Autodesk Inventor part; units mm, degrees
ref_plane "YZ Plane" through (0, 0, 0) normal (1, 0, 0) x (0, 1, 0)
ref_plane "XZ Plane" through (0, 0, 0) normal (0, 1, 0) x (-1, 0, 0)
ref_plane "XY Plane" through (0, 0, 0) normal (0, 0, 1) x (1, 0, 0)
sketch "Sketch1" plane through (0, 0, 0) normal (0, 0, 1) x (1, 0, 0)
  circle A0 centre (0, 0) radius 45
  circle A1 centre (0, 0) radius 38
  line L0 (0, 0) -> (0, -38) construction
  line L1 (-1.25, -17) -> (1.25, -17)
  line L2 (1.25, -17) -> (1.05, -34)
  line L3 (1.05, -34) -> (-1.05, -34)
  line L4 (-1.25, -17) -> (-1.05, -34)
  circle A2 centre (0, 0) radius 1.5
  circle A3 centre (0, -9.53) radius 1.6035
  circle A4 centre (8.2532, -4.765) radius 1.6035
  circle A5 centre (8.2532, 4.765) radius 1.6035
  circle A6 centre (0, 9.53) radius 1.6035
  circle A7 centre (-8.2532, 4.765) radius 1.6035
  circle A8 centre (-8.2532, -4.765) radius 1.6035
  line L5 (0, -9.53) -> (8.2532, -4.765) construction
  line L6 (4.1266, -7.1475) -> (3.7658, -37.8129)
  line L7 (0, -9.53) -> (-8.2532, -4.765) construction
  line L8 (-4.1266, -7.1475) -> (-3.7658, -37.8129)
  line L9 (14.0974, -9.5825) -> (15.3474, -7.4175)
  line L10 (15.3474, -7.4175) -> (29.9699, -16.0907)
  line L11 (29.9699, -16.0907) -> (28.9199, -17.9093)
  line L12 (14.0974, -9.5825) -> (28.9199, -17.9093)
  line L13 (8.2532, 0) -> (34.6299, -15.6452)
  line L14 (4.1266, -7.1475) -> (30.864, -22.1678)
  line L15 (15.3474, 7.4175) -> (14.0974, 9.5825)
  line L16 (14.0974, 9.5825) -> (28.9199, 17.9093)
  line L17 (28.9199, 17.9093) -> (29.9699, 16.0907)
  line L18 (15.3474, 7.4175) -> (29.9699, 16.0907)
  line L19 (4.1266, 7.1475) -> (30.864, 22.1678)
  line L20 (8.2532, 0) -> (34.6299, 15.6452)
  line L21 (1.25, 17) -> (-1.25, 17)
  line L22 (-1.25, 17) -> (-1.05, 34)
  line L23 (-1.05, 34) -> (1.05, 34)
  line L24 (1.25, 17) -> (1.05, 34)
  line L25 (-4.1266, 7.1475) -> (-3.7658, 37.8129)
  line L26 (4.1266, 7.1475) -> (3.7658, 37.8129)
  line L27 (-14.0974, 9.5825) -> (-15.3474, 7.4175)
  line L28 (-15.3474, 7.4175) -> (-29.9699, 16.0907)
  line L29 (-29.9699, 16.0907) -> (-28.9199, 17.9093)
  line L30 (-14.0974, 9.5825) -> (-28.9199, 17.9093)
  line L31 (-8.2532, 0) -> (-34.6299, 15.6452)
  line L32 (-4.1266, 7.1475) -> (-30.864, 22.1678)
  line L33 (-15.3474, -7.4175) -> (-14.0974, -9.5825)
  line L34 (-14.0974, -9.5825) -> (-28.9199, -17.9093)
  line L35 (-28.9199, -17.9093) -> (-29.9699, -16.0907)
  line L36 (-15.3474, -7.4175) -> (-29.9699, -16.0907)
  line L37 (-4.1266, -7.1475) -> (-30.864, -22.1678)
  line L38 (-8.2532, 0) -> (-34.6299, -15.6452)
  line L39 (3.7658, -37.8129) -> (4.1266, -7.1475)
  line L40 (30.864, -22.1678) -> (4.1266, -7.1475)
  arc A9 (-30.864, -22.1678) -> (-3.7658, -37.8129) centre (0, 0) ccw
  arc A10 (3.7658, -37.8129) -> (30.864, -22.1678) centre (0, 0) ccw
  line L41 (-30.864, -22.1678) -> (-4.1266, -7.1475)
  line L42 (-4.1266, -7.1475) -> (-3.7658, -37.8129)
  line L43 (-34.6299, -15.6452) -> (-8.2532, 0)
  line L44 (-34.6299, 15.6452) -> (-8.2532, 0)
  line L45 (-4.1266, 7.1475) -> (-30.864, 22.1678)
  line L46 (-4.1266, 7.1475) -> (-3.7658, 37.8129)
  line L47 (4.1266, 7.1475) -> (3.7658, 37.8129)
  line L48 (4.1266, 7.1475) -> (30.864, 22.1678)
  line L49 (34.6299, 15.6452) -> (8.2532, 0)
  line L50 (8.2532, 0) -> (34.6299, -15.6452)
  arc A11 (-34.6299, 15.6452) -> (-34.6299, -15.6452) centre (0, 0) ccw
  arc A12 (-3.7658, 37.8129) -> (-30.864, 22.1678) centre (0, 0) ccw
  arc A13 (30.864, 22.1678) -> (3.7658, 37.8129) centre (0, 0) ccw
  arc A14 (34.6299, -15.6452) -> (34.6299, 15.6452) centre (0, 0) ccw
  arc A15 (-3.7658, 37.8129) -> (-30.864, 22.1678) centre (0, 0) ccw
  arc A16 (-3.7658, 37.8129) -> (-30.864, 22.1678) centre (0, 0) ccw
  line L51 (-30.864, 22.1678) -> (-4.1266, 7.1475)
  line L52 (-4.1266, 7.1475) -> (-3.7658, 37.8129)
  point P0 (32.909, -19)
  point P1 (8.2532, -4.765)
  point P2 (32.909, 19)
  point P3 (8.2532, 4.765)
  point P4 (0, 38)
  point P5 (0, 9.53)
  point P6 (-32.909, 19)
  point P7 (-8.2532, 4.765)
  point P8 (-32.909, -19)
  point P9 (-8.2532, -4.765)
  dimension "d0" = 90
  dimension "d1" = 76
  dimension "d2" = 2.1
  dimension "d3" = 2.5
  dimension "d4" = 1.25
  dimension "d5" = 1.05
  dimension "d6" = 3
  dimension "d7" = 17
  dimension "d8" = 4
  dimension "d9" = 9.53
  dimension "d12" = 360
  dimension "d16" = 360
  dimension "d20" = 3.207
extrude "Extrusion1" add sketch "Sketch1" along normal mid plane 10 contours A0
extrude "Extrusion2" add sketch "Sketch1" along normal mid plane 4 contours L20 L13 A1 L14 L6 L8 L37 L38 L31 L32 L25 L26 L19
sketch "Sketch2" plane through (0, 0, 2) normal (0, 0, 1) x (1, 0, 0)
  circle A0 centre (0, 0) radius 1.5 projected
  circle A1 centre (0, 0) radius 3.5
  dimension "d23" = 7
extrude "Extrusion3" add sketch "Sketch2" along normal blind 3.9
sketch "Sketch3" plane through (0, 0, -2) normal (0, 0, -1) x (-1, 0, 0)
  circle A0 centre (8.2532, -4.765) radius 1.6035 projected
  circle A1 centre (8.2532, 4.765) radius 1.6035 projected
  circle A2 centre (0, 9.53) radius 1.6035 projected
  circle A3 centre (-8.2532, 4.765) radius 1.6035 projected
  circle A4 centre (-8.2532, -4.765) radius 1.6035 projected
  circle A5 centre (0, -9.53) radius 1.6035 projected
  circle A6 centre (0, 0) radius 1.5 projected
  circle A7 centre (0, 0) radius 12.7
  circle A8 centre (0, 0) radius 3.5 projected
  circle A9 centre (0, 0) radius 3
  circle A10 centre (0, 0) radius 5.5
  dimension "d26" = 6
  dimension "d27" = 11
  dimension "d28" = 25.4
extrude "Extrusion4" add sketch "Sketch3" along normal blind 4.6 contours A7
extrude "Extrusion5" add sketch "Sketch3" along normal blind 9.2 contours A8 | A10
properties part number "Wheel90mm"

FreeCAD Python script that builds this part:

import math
import FreeCAD as App
import Part
import Sketcher

V = App.Vector
Q = App.Units.Quantity

doc = App.newDocument("Part")
body = doc.addObject("PartDesign::Body", "Body")

# Sketch on XY plane
sketch1 = body.newObject("Sketcher::SketchObject", "Sketch")
sketch1.AttachmentSupport = (doc.getObject("XY_Plane"), [""])
sketch1.MapMode = "FlatFace"
sketch1.addGeometry(Part.Circle(V(0, 0, 0), V(0, 0, 1), 45), False)
sketch1.addGeometry(Part.Circle(V(0, 0, 0), V(0, 0, 1), 38), False)
sketch1.addConstraint(Sketcher.Constraint("Coincident", 0, 3, -1, 1))
sketch1.addConstraint(Sketcher.Constraint("Coincident", 1, 3, -1, 1))
sketch1.addConstraint(Sketcher.Constraint("Diameter", 0, 90.0))
sketch1.addConstraint(Sketcher.Constraint("Diameter", 1, 76.0))
pad1 = body.newObject("PartDesign::Pad", "Pad")
pad1.Profile = sketch1
pad1.Length = 10
pad1.Midplane = True

# Sketch on XY plane
sketch2 = body.newObject("Sketcher::SketchObject", "Sketch001")
sketch2.AttachmentSupport = (doc.getObject("XY_Plane"), [""])
sketch2.MapMode = "FlatFace"
sketch2.addGeometry(Part.LineSegment(V(8.3, 0, 0), V(34.6, 15.6, 0)), False)
sketch2.addGeometry(Part.ArcOfCircle(Part.Circle(V(0, 0, 0), V(0, 0, 1), 38), math.radians(24.31), math.radians(35.69)), False)
sketch2.addGeometry(Part.LineSegment(V(30.9, 22.2, 0), V(4.1, 7.1, 0)), False)
sketch2.addGeometry(Part.LineSegment(V(4.1, 7.1, 0), V(3.8, 37.8, 0)), False)
sketch2.addGeometry(Part.ArcOfCircle(Part.Circle(V(0, 0, 0), V(0, 0, 1), 38), math.radians(84.31), math.radians(95.69)), False)
sketch2.addGeometry(Part.LineSegment(V(-3.8, 37.8, 0), V(-4.1, 7.1, 0)), False)
sketch2.addGeometry(Part.LineSegment(V(-4.1, 7.1, 0), V(-30.9, 22.2, 0)), False)
sketch2.addGeometry(Part.ArcOfCircle(Part.Circle(V(0, 0, 0), V(0, 0, 1), 38), math.radians(144.31), math.radians(155.69)), False)
sketch2.addGeometry(Part.LineSegment(V(-34.6, 15.6, 0), V(-8.3, 0, 0)), False)
sketch2.addGeometry(Part.LineSegment(V(-8.3, 0, 0), V(-34.6, -15.6, 0)), False)
sketch2.addGeometry(Part.ArcOfCircle(Part.Circle(V(0, 0, 0), V(0, 0, 1), 38), math.radians(-155.69), math.radians(-144.31)), False)
sketch2.addGeometry(Part.LineSegment(V(-30.9, -22.2, 0), V(-4.1, -7.1, 0)), False)
sketch2.addGeometry(Part.LineSegment(V(-4.1, -7.1, 0), V(-3.8, -37.8, 0)), False)
sketch2.addGeometry(Part.ArcOfCircle(Part.Circle(V(0, 0, 0), V(0, 0, 1), 38), math.radians(-95.69), math.radians(-84.31)), False)
sketch2.addGeometry(Part.LineSegment(V(3.8, -37.8, 0), V(4.1, -7.1, 0)), False)
sketch2.addGeometry(Part.LineSegment(V(4.1, -7.1, 0), V(30.9, -22.2, 0)), False)
sketch2.addGeometry(Part.ArcOfCircle(Part.Circle(V(0, 0, 0), V(0, 0, 1), 38), math.radians(-35.69), math.radians(-24.31)), False)
sketch2.addGeometry(Part.LineSegment(V(34.6, -15.6, 0), V(8.3, 0, 0)), False)
sketch2.addGeometry(Part.LineSegment(V(-30, -16.1, 0), V(-15.3, -7.4, 0)), False)
sketch2.addGeometry(Part.LineSegment(V(-15.3, -7.4, 0), V(-14.1, -9.6, 0)), False)
sketch2.addGeometry(Part.LineSegment(V(-14.1, -9.6, 0), V(-28.9, -17.9, 0)), False)
sketch2.addGeometry(Part.LineSegment(V(-28.9, -17.9, 0), V(-30, -16.1, 0)), False)
sketch2.addGeometry(Part.Circle(V(-8.3, -4.8, 0), V(0, 0, 1), 1.6), False)
sketch2.addGeometry(Part.LineSegment(V(-1.1, -34, 0), V(-1.2, -17, 0)), False)
sketch2.addGeometry(Part.LineSegment(V(-1.2, -17, 0), V(1.2, -17, 0)), False)
sketch2.addGeometry(Part.LineSegment(V(1.2, -17, 0), V(1.1, -34, 0)), False)
sketch2.addGeometry(Part.LineSegment(V(1.1, -34, 0), V(-1.1, -34, 0)), False)
sketch2.addGeometry(Part.LineSegment(V(28.9, -17.9, 0), V(14.1, -9.6, 0)), False)
sketch2.addGeometry(Part.LineSegment(V(14.1, -9.6, 0), V(15.3, -7.4, 0)), False)
sketch2.addGeometry(Part.LineSegment(V(15.3, -7.4, 0), V(30, -16.1, 0)), False)
sketch2.addGeometry(Part.LineSegment(V(30, -16.1, 0), V(28.9, -17.9, 0)), False)
sketch2.addGeometry(Part.Circle(V(0, -9.5, 0), V(0, 0, 1), 1.6), False)
sketch2.addGeometry(Part.Circle(V(8.3, -4.8, 0), V(0, 0, 1), 1.6), False)
sketch2.addGeometry(Part.Circle(V(-8.3, 4.8, 0), V(0, 0, 1), 1.6), False)
sketch2.addGeometry(Part.LineSegment(V(-28.9, 17.9, 0), V(-14.1, 9.6, 0)), False)
sketch2.addGeometry(Part.LineSegment(V(-14.1, 9.6, 0), V(-15.3, 7.4, 0)), False)
sketch2.addGeometry(Part.LineSegment(V(-15.3, 7.4, 0), V(-30, 16.1, 0)), False)
sketch2.addGeometry(Part.LineSegment(V(-30, 16.1, 0), V(-28.9, 17.9, 0)), False)
sketch2.addGeometry(Part.Circle(V(0, 0, 0), V(0, 0, 1), 1.5), False)
sketch2.addGeometry(Part.Circle(V(8.3, 4.8, 0), V(0, 0, 1), 1.6), False)
sketch2.addGeometry(Part.Circle(V(0, 9.5, 0), V(0, 0, 1), 1.6), False)
sketch2.addGeometry(Part.LineSegment(V(30, 16.1, 0), V(15.3, 7.4, 0)), False)
sketch2.addGeometry(Part.LineSegment(V(15.3, 7.4, 0), V(14.1, 9.6, 0)), False)
sketch2.addGeometry(Part.LineSegment(V(14.1, 9.6, 0), V(28.9, 17.9, 0)), False)
sketch2.addGeometry(Part.LineSegment(V(28.9, 17.9, 0), V(30, 16.1, 0)), False)
sketch2.addGeometry(Part.LineSegment(V(1.1, 34, 0), V(1.2, 17, 0)), False)
sketch2.addGeometry(Part.LineSegment(V(1.2, 17, 0), V(-1.2, 17, 0)), False)
sketch2.addGeometry(Part.LineSegment(V(-1.2, 17, 0), V(-1.1, 34, 0)), False)
sketch2.addGeometry(Part.LineSegment(V(-1.1, 34, 0), V(1.1, 34, 0)), False)
sketch2.addConstraint(Sketcher.Constraint("Coincident", 0, 2, 1, 1))
sketch2.addConstraint(Sketcher.Constraint("Coincident", 1, 2, 2, 1))
sketch2.addConstraint(Sketcher.Constraint("Coincident", 2, 2, 3, 1))
sketch2.addConstraint(Sketcher.Constraint("Coincident", 3, 2, 4, 1))
sketch2.addConstraint(Sketcher.Constraint("Coincident", 4, 2, 5, 1))
sketch2.addConstraint(Sketcher.Constraint("Coincident", 5, 2, 6, 1))
sketch2.addConstraint(Sketcher.Constraint("Coincident", 6, 2, 7, 1))
sketch2.addConstraint(Sketcher.Constraint("Coincident", 7, 2, 8, 1))
sketch2.addConstraint(Sketcher.Constraint("Coincident", 8, 2, 9, 1))
sketch2.addConstraint(Sketcher.Constraint("Coincident", 9, 2, 10, 1))
sketch2.addConstraint(Sketcher.Constraint("Coincident", 10, 2, 11, 1))
sketch2.addConstraint(Sketcher.Constraint("Coincident", 11, 2, 12, 1))
sketch2.addConstraint(Sketcher.Constraint("Coincident", 12, 2, 13, 1))
sketch2.addConstraint(Sketcher.Constraint("Coincident", 13, 2, 14, 1))
sketch2.addConstraint(Sketcher.Constraint("Coincident", 14, 2, 15, 1))
sketch2.addConstraint(Sketcher.Constraint("Coincident", 15, 2, 16, 1))
sketch2.addConstraint(Sketcher.Constraint("Coincident", 16, 2, 17, 1))
sketch2.addConstraint(Sketcher.Constraint("Coincident", 17, 2, 0, 1))
sketch2.addConstraint(Sketcher.Constraint("Coincident", 18, 2, 19, 1))
sketch2.addConstraint(Sketcher.Constraint("Coincident", 19, 2, 20, 1))
sketch2.addConstraint(Sketcher.Constraint("Coincident", 20, 2, 21, 1))
sketch2.addConstraint(Sketcher.Constraint("Coincident", 21, 2, 18, 1))
sketch2.addConstraint(Sketcher.Constraint("Coincident", 23, 2, 24, 1))
sketch2.addConstraint(Sketcher.Constraint("Coincident", 24, 2, 25, 1))
sketch2.addConstraint(Sketcher.Constraint("Coincident", 25, 2, 26, 1))
sketch2.addConstraint(Sketcher.Constraint("Coincident", 26, 2, 23, 1))
sketch2.addConstraint(Sketcher.Constraint("Coincident", 27, 2, 28, 1))
sketch2.addConstraint(Sketcher.Constraint("Coincident", 28, 2, 29, 1))
sketch2.addConstraint(Sketcher.Constraint("Coincident", 29, 2, 30, 1))
sketch2.addConstraint(Sketcher.Constraint("Coincident", 30, 2, 27, 1))
sketch2.addConstraint(Sketcher.Constraint("Coincident", 34, 2, 35, 1))
sketch2.addConstraint(Sketcher.Constraint("Coincident", 35, 2, 36, 1))
sketch2.addConstraint(Sketcher.Constraint("Coincident", 36, 2, 37, 1))
sketch2.addConstraint(Sketcher.Constraint("Coincident", 37, 2, 34, 1))
sketch2.addConstraint(Sketcher.Constraint("Coincident", 41, 2, 42, 1))
sketch2.addConstraint(Sketcher.Constraint("Coincident", 42, 2, 43, 1))
sketch2.addConstraint(Sketcher.Constraint("Coincident", 43, 2, 44, 1))
sketch2.addConstraint(Sketcher.Constraint("Coincident", 44, 2, 41, 1))
sketch2.addConstraint(Sketcher.Constraint("Coincident", 45, 2, 46, 1))
sketch2.addConstraint(Sketcher.Constraint("Coincident", 46, 2, 47, 1))
sketch2.addConstraint(Sketcher.Constraint("Coincident", 47, 2, 48, 1))
sketch2.addConstraint(Sketcher.Constraint("Coincident", 48, 2, 45, 1))
sketch2.addConstraint(Sketcher.Constraint("Horizontal", 24))
sketch2.addConstraint(Sketcher.Constraint("Horizontal", 26))
sketch2.addConstraint(Sketcher.Constraint("Horizontal", 46))
sketch2.addConstraint(Sketcher.Constraint("Horizontal", 48))
sketch2.addConstraint(Sketcher.Constraint("Coincident", 1, 3, -1, 1))
sketch2.addConstraint(Sketcher.Constraint("Coincident", 4, 3, -1, 1))
sketch2.addConstraint(Sketcher.Constraint("Coincident", 7, 3, -1, 1))
sketch2.addConstraint(Sketcher.Constraint("Coincident", 10, 3, -1, 1))
sketch2.addConstraint(Sketcher.Constraint("Coincident", 13, 3, -1, 1))
sketch2.addConstraint(Sketcher.Constraint("Coincident", 16, 3, -1, 1))
sketch2.addConstraint(Sketcher.Constraint("Coincident", 38, 3, -1, 1))
sketch2.addConstraint(Sketcher.Constraint("Equal", 1, 4))
sketch2.addConstraint(Sketcher.Constraint("Equal", 4, 7))
sketch2.addConstraint(Sketcher.Constraint("Equal", 7, 10))
sketch2.addConstraint(Sketcher.Constraint("Equal", 10, 13))
sketch2.addConstraint(Sketcher.Constraint("Equal", 13, 16))
sketch2.addConstraint(Sketcher.Constraint("Equal", 22, 31))
sketch2.addConstraint(Sketcher.Constraint("Equal", 31, 32))
sketch2.addConstraint(Sketcher.Constraint("Equal", 32, 33))
sketch2.addConstraint(Sketcher.Constraint("Equal", 33, 39))
sketch2.addConstraint(Sketcher.Constraint("Equal", 39, 40))
sketch2.addConstraint(Sketcher.Constraint("Symmetric", 32, 3, 33, 3, -1, 1))
sketch2.addConstraint(Sketcher.Constraint("Symmetric", 22, 3, 39, 3, -1, 1))
sketch2.addConstraint(Sketcher.Constraint("Symmetric", 31, 3, 40, 3, -1, 1))
sketch2.addConstraint(Sketcher.Constraint("Symmetric", 2, 2, 11, 2, -1, 1))
sketch2.addConstraint(Sketcher.Constraint("Symmetric", 5, 2, 14, 2, -1, 1))
sketch2.addConstraint(Sketcher.Constraint("Symmetric", 8, 2, 17, 2, -1, 1))
sketch2.addConstraint(Sketcher.Constraint("Symmetric", 27, 2, 34, 2, -1, 1))
sketch2.addConstraint(Sketcher.Constraint("Symmetric", 28, 2, 35, 2, -1, 1))
sketch2.addConstraint(Sketcher.Constraint("Symmetric", 29, 2, 36, 2, -1, 1))
sketch2.addConstraint(Sketcher.Constraint("Symmetric", 30, 2, 37, 2, -1, 1))
sketch2.addConstraint(Sketcher.Constraint("Symmetric", 18, 2, 41, 2, -1, 1))
sketch2.addConstraint(Sketcher.Constraint("Symmetric", 19, 2, 42, 2, -1, 1))
sketch2.addConstraint(Sketcher.Constraint("Symmetric", 20, 2, 43, 2, -1, 1))
sketch2.addConstraint(Sketcher.Constraint("Symmetric", 21, 2, 44, 2, -1, 1))
sketch2.addConstraint(Sketcher.Constraint("Symmetric", 23, 2, 45, 2, -1, 1))
sketch2.addConstraint(Sketcher.Constraint("Symmetric", 25, 2, 47, 2, -1, 1))
sketch2.addConstraint(Sketcher.Constraint("Symmetric", 22, 3, 32, 3, -2))
sketch2.addConstraint(Sketcher.Constraint("Symmetric", 2, 2, 5, 2, -2))
sketch2.addConstraint(Sketcher.Constraint("Symmetric", 19, 2, 27, 2, -2))
sketch2.addConstraint(Sketcher.Constraint("Symmetric", 18, 2, 28, 2, -2))
sketch2.addConstraint(Sketcher.Constraint("Symmetric", 21, 2, 29, 2, -2))
sketch2.addConstraint(Sketcher.Constraint("Symmetric", 20, 2, 30, 2, -2))
sketch2.addConstraint(Sketcher.Constraint("PointOnObject", 31, 3, -2))
sketch2.addConstraint(Sketcher.Constraint("PointOnObject", 8, 2, -1))
sketch2.addConstraint(Sketcher.Constraint("Parallel", 0, 9))
sketch2.addConstraint(Sketcher.Constraint("Parallel", 2, 11))
sketch2.addConstraint(Sketcher.Constraint("Parallel", 3, 12))
sketch2.addConstraint(Sketcher.Constraint("Parallel", 5, 14))
sketch2.addConstraint(Sketcher.Constraint("Parallel", 6, 15))
sketch2.addConstraint(Sketcher.Constraint("Parallel", 8, 17))
sketch2.addConstraint(Sketcher.Constraint("Parallel", 9, 18))
sketch2.addConstraint(Sketcher.Constraint("Parallel", 11, 20))
sketch2.addConstraint(Sketcher.Constraint("Parallel", 19, 21))
sketch2.addConstraint(Sketcher.Constraint("Parallel", 12, 23))
sketch2.addConstraint(Sketcher.Constraint("Parallel", 14, 25))
sketch2.addConstraint(Sketcher.Constraint("Parallel", 15, 27))
sketch2.addConstraint(Sketcher.Constraint("Parallel", 17, 29))
sketch2.addConstraint(Sketcher.Constraint("Parallel", 23, 45))
sketch2.addConstraint(Sketcher.Constraint("Parallel", 25, 47))
sketch2.addConstraint(Sketcher.Constraint("Horizontal", 3, 2, 4, 2))
sketch2.addConstraint(Sketcher.Constraint("Vertical", 33, 3, 8, 2))
sketch2.addConstraint(Sketcher.Constraint("Vertical", 24, 2, 45, 2))
sketch2.addConstraint(Sketcher.Constraint("Equal", 0, 2))
sketch2.addConstraint(Sketcher.Constraint("Equal", 2, 3))
sketch2.addConstraint(Sketcher.Constraint("Equal", 18, 20))
sketch2.addConstraint(Sketcher.Constraint("Equal", 20, 23))
sketch2.addConstraint(Sketcher.Constraint("Diameter", 38, 3.0))
sketch2.addConstraint(Sketcher.Constraint("Radius", 1, 38.0))
sketch2.addConstraint(Sketcher.Constraint("Diameter", 22, 3.207))
sketch2.addConstraint(Sketcher.Constraint("DistanceX", 24, 1, 24, 2, 2.5))
sketch2.addConstraint(Sketcher.Constraint("DistanceX", 26, 2, 26, 1, 2.1))
sketch2.addConstraint(Sketcher.Constraint("DistanceY", 23, 2, -1, 1, 17.0))
sketch2.addConstraint(Sketcher.Constraint("DistanceY", 25, 2, 24, 2, 17.0))
sketch2.addConstraint(Sketcher.Constraint("Distance", 19, 2.5))
sketch2.addConstraint(Sketcher.Constraint("Distance", 21, 2.1))
sketch2.addConstraint(Sketcher.Constraint("DistanceY", 31, 3, -1, 1, 9.53))
sketch2.addConstraint(Sketcher.Constraint("Angle", 19, Q("-59.9993 deg")))
sketch2.addConstraint(Sketcher.Constraint("DistanceX", -1, 1, 0, 2, 34.63))
sketch2.addConstraint(Sketcher.Constraint("DistanceX", 20, 2, -1, 1, 28.92))
sketch2.addConstraint(Sketcher.Constraint("DistanceY", 18, 2, 11, 2, 0.27))
sketch2.addConstraint(Sketcher.Constraint("DistanceY", 22, 3, -1, 1, 4.765))
pad2 = body.newObject("PartDesign::Pad", "Pad001")
pad2.Profile = sketch2
pad2.Length = 4
pad2.Midplane = True

# Sketch on XY plane
sketch3 = body.newObject("Sketcher::SketchObject", "Sketch002")
sketch3.AttachmentSupport = (doc.getObject("XY_Plane"), [""])
sketch3.MapMode = "FlatFace"
sketch3.AttachmentOffset = App.Placement(V(0, 0, 2), App.Rotation())
sketch3.addGeometry(Part.Circle(V(0, 0, 0), V(0, 0, 1), 3.5), False)
sketch3.addGeometry(Part.Circle(V(0, 0, 0), V(0, 0, 1), 1.5), False)
sketch3.addConstraint(Sketcher.Constraint("Coincident", 0, 3, -1, 1))
sketch3.addConstraint(Sketcher.Constraint("Coincident", 1, 3, -1, 1))
sketch3.addConstraint(Sketcher.Constraint("Diameter", 0, 7.0))
sketch3.addConstraint(Sketcher.Constraint("Diameter", 1, 3.0))
pad3 = body.newObject("PartDesign::Pad", "Pad002")
pad3.Profile = sketch3
pad3.Length = 3.9

# Sketch on XY plane
sketch4 = body.newObject("Sketcher::SketchObject", "Sketch003")
sketch4.AttachmentSupport = (doc.getObject("XY_Plane"), [""])
sketch4.MapMode = "FlatFace"
sketch4.AttachmentOffset = App.Placement(V(0, 0, -2), App.Rotation())
sketch4.addGeometry(Part.Circle(V(0, 0, 0), V(0, 0, 1), 12.7), False)
sketch4.addGeometry(Part.Circle(V(0, -9.5, 0), V(0, 0, 1), 1.6), False)
sketch4.addGeometry(Part.Circle(V(8.3, -4.8, 0), V(0, 0, 1), 1.6), False)
sketch4.addGeometry(Part.Circle(V(0, 0, 0), V(0, 0, 1), 5.5), False)
sketch4.addGeometry(Part.Circle(V(-8.3, -4.8, 0), V(0, 0, 1), 1.6), False)
sketch4.addGeometry(Part.Circle(V(8.3, 4.8, 0), V(0, 0, 1), 1.6), False)
sketch4.addGeometry(Part.Circle(V(0, 9.5, 0), V(0, 0, 1), 1.6), False)
sketch4.addGeometry(Part.Circle(V(-8.3, 4.8, 0), V(0, 0, 1), 1.6), False)
sketch4.addConstraint(Sketcher.Constraint("Coincident", 0, 3, -1, 1))
sketch4.addConstraint(Sketcher.Constraint("Coincident", 3, 3, -1, 1))
sketch4.addConstraint(Sketcher.Constraint("Equal", 1, 2))
sketch4.addConstraint(Sketcher.Constraint("Equal", 2, 4))
sketch4.addConstraint(Sketcher.Constraint("Equal", 4, 5))
sketch4.addConstraint(Sketcher.Constraint("Equal", 5, 6))
sketch4.addConstraint(Sketcher.Constraint("Equal", 6, 7))
sketch4.addConstraint(Sketcher.Constraint("Symmetric", 4, 3, 5, 3, -1, 1))
sketch4.addConstraint(Sketcher.Constraint("Symmetric", 1, 3, 6, 3, -1, 1))
sketch4.addConstraint(Sketcher.Constraint("Symmetric", 2, 3, 7, 3, -1, 1))
sketch4.addConstraint(Sketcher.Constraint("Symmetric", 2, 3, 4, 3, -2))
sketch4.addConstraint(Sketcher.Constraint("PointOnObject", 1, 3, -2))
sketch4.addConstraint(Sketcher.Constraint("Diameter", 3, 11.0))
sketch4.addConstraint(Sketcher.Constraint("Diameter", 0, 25.4))
sketch4.addConstraint(Sketcher.Constraint("Diameter", 1, 3.207))
sketch4.addConstraint(Sketcher.Constraint("DistanceY", 1, 3, -1, 1, 9.53))
sketch4.addConstraint(Sketcher.Constraint("DistanceY", 2, 3, 5, 3, 9.53))
sketch4.addConstraint(Sketcher.Constraint("DistanceX", -1, 1, 2, 3, 8.2532))
pad4 = body.newObject("PartDesign::Pad", "Pad003")
pad4.Profile = sketch4
pad4.Length = 4.6
pad4.Reversed = True

# Sketch on XY plane
sketch5 = body.newObject("Sketcher::SketchObject", "Sketch004")
sketch5.AttachmentSupport = (doc.getObject("XY_Plane"), [""])
sketch5.MapMode = "FlatFace"
sketch5.AttachmentOffset = App.Placement(V(0, 0, -2), App.Rotation())
sketch5.addGeometry(Part.Circle(V(0, 0, 0), V(0, 0, 1), 5.5), False)
sketch5.addGeometry(Part.Circle(V(0, 0, 0), V(0, 0, 1), 3), False)
sketch5.addConstraint(Sketcher.Constraint("Coincident", 0, 3, -1, 1))
sketch5.addConstraint(Sketcher.Constraint("Coincident", 1, 3, -1, 1))
sketch5.addConstraint(Sketcher.Constraint("Diameter", 0, 11.0))
sketch5.addConstraint(Sketcher.Constraint("Diameter", 1, 6.0))
pad5 = body.newObject("PartDesign::Pad", "Pad004")
pad5.Profile = sketch5
pad5.Length = 9.2
pad5.Reversed = True

doc.recompute()
